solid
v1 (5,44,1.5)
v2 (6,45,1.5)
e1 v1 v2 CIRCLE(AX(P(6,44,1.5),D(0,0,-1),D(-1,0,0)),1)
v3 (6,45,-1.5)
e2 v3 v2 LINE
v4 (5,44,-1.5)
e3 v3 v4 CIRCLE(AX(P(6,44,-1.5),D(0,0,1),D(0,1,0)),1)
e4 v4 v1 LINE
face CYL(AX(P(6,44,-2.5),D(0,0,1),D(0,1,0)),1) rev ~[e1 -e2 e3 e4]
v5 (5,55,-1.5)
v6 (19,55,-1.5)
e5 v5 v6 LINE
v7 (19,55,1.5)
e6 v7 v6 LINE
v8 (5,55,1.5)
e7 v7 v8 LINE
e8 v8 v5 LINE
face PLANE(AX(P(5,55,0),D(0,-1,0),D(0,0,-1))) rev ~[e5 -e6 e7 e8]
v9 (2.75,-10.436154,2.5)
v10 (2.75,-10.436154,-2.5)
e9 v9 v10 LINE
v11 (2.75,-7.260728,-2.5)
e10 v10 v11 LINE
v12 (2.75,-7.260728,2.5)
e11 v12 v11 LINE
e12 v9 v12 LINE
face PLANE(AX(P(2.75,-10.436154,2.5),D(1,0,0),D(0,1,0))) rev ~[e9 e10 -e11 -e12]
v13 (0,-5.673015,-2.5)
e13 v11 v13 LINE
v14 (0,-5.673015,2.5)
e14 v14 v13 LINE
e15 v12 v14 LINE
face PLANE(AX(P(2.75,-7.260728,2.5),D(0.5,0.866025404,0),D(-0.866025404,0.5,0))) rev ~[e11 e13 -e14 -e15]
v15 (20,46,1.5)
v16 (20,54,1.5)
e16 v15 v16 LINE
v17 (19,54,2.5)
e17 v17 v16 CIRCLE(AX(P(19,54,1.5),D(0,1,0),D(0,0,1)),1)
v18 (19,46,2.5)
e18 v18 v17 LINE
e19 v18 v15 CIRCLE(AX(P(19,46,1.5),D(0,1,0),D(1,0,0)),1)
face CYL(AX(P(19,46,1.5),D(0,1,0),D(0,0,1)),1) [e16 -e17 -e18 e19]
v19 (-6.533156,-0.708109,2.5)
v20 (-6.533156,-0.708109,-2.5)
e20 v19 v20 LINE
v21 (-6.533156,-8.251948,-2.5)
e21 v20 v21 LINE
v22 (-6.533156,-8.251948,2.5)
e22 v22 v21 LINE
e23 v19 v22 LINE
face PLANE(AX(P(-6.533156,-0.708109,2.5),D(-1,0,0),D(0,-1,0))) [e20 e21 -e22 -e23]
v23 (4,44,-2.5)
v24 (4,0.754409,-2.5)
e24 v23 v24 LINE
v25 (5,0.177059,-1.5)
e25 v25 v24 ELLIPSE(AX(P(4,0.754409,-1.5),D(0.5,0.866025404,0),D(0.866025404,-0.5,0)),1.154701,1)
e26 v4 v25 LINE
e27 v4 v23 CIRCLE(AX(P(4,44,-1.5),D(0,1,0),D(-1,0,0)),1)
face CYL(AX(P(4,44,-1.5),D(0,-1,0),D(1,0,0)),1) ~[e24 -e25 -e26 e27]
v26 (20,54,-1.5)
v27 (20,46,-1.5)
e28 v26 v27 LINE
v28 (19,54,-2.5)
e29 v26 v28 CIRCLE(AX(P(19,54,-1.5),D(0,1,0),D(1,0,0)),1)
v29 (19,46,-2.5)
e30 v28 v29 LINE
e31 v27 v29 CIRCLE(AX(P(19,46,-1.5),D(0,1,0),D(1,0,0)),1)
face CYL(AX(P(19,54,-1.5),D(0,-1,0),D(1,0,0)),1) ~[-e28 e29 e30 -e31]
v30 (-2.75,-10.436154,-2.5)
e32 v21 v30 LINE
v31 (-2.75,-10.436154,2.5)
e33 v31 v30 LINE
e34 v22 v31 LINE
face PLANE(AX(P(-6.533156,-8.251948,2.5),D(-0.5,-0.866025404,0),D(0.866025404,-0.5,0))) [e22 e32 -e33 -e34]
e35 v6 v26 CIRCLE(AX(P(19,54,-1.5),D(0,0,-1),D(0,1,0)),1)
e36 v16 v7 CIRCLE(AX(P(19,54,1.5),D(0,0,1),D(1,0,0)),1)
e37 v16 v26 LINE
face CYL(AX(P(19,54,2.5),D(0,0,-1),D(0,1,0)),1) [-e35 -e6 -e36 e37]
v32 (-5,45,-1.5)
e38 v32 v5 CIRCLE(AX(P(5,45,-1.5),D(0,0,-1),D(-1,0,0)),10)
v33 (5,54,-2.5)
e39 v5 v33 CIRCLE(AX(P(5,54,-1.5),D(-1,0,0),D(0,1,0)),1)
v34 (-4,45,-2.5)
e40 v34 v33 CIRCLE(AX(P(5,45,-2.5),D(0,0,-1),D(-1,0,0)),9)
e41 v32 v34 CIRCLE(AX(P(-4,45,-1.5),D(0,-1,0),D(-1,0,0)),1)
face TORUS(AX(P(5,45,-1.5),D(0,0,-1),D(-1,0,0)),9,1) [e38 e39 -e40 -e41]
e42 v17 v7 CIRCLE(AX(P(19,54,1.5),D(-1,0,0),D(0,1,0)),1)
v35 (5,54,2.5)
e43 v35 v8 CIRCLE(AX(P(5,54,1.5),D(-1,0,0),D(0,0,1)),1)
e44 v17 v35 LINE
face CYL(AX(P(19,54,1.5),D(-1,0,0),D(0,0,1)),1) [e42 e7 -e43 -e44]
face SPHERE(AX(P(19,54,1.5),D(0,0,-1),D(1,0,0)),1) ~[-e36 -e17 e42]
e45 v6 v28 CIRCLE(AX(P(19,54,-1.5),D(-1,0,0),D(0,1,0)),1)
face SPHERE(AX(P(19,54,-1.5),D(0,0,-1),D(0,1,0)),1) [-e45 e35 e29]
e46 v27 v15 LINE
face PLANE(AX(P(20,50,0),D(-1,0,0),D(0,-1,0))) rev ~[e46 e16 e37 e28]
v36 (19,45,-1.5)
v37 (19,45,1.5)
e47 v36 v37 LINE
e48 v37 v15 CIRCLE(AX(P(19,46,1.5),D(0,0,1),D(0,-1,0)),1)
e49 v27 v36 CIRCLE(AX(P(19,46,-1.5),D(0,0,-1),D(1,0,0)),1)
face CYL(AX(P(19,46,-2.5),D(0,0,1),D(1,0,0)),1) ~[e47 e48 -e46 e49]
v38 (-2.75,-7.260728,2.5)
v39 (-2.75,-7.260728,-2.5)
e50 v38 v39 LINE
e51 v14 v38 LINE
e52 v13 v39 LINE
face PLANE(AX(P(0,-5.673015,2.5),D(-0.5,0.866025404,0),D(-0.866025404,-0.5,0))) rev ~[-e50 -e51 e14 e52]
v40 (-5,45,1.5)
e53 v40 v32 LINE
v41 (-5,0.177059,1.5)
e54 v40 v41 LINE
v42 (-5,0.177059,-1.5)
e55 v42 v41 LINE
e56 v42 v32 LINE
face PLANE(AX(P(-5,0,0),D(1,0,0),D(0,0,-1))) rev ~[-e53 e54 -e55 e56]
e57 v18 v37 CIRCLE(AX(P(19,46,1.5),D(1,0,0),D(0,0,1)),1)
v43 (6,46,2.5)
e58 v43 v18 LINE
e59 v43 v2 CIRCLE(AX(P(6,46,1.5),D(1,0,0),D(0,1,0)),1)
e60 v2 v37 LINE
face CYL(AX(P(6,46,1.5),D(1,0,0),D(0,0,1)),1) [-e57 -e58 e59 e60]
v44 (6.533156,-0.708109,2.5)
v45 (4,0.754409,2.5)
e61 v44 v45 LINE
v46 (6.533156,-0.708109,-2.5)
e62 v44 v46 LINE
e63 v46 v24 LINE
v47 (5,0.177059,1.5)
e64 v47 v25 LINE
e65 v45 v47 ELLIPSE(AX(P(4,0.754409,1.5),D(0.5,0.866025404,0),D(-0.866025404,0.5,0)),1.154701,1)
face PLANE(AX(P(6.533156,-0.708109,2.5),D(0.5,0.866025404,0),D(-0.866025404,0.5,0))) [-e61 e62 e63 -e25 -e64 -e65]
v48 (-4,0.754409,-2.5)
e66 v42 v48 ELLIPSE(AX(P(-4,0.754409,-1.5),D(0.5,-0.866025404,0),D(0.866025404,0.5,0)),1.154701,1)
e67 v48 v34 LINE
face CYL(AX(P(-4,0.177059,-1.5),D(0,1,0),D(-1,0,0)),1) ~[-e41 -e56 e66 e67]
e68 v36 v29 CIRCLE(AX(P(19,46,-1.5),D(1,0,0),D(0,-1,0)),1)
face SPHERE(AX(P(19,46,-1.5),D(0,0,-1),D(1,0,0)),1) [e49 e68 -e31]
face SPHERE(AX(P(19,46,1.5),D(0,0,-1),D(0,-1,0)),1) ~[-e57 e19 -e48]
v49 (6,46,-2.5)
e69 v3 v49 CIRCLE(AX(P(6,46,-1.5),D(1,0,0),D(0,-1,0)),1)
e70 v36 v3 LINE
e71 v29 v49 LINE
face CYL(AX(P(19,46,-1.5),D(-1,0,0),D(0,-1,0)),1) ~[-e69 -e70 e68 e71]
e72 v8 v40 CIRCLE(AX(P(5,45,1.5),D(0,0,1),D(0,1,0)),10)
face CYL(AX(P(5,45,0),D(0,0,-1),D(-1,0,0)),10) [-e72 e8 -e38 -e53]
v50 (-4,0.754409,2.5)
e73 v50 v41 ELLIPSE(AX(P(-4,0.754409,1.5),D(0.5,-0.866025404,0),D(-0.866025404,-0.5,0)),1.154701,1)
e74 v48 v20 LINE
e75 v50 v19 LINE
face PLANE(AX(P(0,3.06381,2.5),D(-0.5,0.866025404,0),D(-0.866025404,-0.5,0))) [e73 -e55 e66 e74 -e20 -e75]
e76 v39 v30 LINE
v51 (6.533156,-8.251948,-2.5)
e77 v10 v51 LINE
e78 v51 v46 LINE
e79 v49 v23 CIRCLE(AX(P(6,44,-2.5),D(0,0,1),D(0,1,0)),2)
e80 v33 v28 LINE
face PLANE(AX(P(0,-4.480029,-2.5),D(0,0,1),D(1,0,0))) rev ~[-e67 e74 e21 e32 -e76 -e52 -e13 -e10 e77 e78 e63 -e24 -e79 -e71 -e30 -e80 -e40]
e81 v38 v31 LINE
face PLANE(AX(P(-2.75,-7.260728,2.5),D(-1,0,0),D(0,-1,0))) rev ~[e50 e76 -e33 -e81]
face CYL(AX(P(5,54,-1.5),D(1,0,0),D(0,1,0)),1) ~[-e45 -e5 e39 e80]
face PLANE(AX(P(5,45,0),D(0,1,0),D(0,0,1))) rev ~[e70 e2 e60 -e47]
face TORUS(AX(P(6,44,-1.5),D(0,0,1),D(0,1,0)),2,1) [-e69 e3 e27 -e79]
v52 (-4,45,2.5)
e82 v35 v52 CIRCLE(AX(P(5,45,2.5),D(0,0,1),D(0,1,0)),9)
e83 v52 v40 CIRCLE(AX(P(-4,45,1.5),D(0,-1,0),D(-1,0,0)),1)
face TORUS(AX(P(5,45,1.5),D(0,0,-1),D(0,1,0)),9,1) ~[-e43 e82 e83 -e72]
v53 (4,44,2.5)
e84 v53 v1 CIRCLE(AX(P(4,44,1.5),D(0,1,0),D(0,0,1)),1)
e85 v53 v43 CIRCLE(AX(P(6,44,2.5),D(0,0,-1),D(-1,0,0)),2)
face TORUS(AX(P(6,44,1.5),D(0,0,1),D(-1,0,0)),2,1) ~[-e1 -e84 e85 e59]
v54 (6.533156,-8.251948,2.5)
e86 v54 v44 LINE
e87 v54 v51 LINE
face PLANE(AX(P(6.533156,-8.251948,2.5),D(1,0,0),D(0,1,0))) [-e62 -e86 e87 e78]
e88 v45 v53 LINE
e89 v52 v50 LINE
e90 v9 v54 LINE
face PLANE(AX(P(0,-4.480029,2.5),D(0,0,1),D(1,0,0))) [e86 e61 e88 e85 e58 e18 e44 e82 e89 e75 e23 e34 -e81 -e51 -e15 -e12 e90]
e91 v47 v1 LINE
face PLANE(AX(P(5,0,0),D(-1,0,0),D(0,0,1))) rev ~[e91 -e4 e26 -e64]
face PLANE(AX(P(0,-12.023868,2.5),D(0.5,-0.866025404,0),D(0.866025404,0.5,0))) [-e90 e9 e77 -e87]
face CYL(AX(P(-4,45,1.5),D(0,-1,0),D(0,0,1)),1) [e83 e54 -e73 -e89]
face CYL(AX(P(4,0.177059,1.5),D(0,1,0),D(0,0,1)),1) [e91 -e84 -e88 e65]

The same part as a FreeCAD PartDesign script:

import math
import FreeCAD as App
import Part
import Sketcher
Q = App.Units.Quantity


def edges_at(feature, points):
    """Names of the edges that pass closest to the given points."""
    edges = feature.Shape.Edges
    near = lambda p: min(range(len(edges)), key=lambda i: edges[i].distToShape(Part.Vertex(*p))[0])
    return sorted({f"Edge{near(p) + 1}" for p in points})


def add_polygon(sketch, points):
    """Adds a closed chain of lines whose ends are joined by coincident constraints."""
    first, n = sketch.GeometryCount, len(points)
    for a, b in zip(points, points[1:] + points[:1]):
        sketch.addGeometry(Part.LineSegment(App.Vector(*a, 0), App.Vector(*b, 0)), False)
    for i in range(n):
        sketch.addConstraint(Sketcher.Constraint("Coincident", first + i, 2, first + (i + 1) % n, 1))

doc = App.newDocument("Part")
params = doc.addObject("Spreadsheet::Sheet", "Params")
for row, (alias, value) in enumerate([
    ("sketch1_width", "10 mm"),
    ("sketch1_height", "5 mm"),
    ("sketch2_radius", "5 mm"),
    ("sketch2_width", "15 mm"),
    ("sketch2_height", "45 mm"),
    ("pad1_length", "5 mm"),
    ("fillet_radius", "1 mm"),
    ("fillet2_radius", "1 mm"),
], start=1):
    params.set(f"A{row}", alias)
    params.set(f"B{row}", "=" + value)
    params.setAlias(f"B{row}", alias)

body = doc.addObject("PartDesign::Body", "Body")

# Sketch on XZ plane
sketch1 = body.newObject("Sketcher::SketchObject", "Sketch")
sketch1.AttachmentSupport = (doc.getObject("XZ_Plane"), [""])
sketch1.MapMode = "FlatFace"
add_polygon(sketch1, [(-5, 2), (-5, -2), (5, -2), (5, 2)])  # lines 0-3
sketch1.addConstraint([
    Sketcher.Constraint("Vertical", 0),
    Sketcher.Constraint("Horizontal", 1),
    Sketcher.Constraint("Vertical", 2),
    Sketcher.Constraint("Horizontal", 3),
    Sketcher.Constraint("Symmetric", 0, 2, 2, 2, -1, 1),
    Sketcher.Constraint("DistanceX", 1, 1, 1, 2, 10.0),
    Sketcher.Constraint("DistanceY", 0, 2, 0, 1, 5.0),
])
sketch1.setExpression("Constraints[9]", "Params.sketch1_width")
sketch1.setExpression("Constraints[10]", "Params.sketch1_height")

# Sketch on XY plane
sketch2 = body.newObject("Sketcher::SketchObject", "Sketch001")
sketch2.AttachmentSupport = (doc.getObject("XY_Plane"), [""])
sketch2.MapMode = "FlatFace"
sketch2.addGeometry([
    Part.LineSegment(App.Vector(0, 0, 0), App.Vector(0, 45, 0)),
    Part.ArcOfCircle(Part.Circle(App.Vector(5, 45, 0), App.Vector(0, 0, 1), 5), math.radians(90), math.radians(180)),
    Part.LineSegment(App.Vector(5, 50, 0), App.Vector(20, 50, 0)),
], False)
sketch2.addConstraint([
    Sketcher.Constraint("Tangent", 0, 2, 1, 2),
    Sketcher.Constraint("Tangent", 1, 1, 2, 1),
    Sketcher.Constraint("Vertical", 0),
    Sketcher.Constraint("Horizontal", 2),
    Sketcher.Constraint("Coincident", 0, 1, -1, 1),
    Sketcher.Constraint("Radius", 1, 5.0),
    Sketcher.Constraint("DistanceX", 2, 1, 2, 2, 15.0),
    Sketcher.Constraint("DistanceY", 0, 1, 0, 2, 45.0),
])
sketch2.setExpression("Constraints[5]", "Params.sketch2_radius")
sketch2.setExpression("Constraints[6]", "Params.sketch2_width")
sketch2.setExpression("Constraints[7]", "Params.sketch2_height")
doc.recompute()

additivepipe = body.newObject("PartDesign::AdditivePipe", "AdditivePipe")
additivepipe.Profile = sketch1
additivepipe.Spine = (sketch2, ["Edge1", "Edge2", "Edge3"])

# Sketch on XY plane
sketch3 = body.newObject("Sketcher::SketchObject", "Sketch002")
sketch3.AttachmentSupport = (doc.getObject("XY_Plane"), [""])
sketch3.MapMode = "FlatFace"
sketch3.AttachmentOffset = App.Placement(App.Vector(0, 0, 2.5), App.Rotation())
add_polygon(sketch3, [(0, -12), (7, -8), (7, -1), (0, 3), (-7, -1), (-7, -8)])  # lines 0-5
sketch3.addConstraint([
    Sketcher.Constraint("Vertical", 1),
    Sketcher.Constraint("Vertical", 4),
    Sketcher.Constraint("Symmetric", 1, 2, 3, 2, -2),
    Sketcher.Constraint("PointOnObject", 2, 2, -2),
    Sketcher.Constraint("PointOnObject", 5, 2, -2),
    Sketcher.Constraint("Parallel", 0, 3),
    Sketcher.Constraint("Parallel", 2, 5),
    Sketcher.Constraint("Angle", 0, Q("30 deg")),
    Sketcher.Constraint("DistanceY", 1, 1, 1, 2, 7.543839),
    Sketcher.Constraint("Distance", 0, 7.543839),
    Sketcher.Constraint("DistanceY", 0, 2, -1, 1, 8.251948),
])
pad1 = body.newObject("PartDesign::Pad", "Pad")
pad1.Profile = sketch3
pad1.setExpression("Length", "Params.pad1_length")
pad1.Reversed = True

# Sketch on XY plane
sketch4 = body.newObject("Sketcher::SketchObject", "Sketch003")
sketch4.AttachmentSupport = (doc.getObject("XY_Plane"), [""])
sketch4.MapMode = "FlatFace"
sketch4.AttachmentOffset = App.Placement(App.Vector(0, 0, 2.5), App.Rotation())
add_polygon(sketch4, [(0, -12), (2.8, -10.4), (2.8, -7.3), (0, -5.7), (-2.8, -7.3), (-2.8, -10.4)])  # lines 0-5
sketch4.addConstraint([
    Sketcher.Constraint("Vertical", 1),
    Sketcher.Constraint("Vertical", 4),
    Sketcher.Constraint("Symmetric", 1, 2, 3, 2, -2),
    Sketcher.Constraint("PointOnObject", 2, 2, -2),
    Sketcher.Constraint("PointOnObject", 5, 2, -2),
    Sketcher.Constraint("Parallel", 0, 3),
    Sketcher.Constraint("Parallel", 2, 5),
    Sketcher.Constraint("Angle", 0, Q("30 deg")),
    Sketcher.Constraint("DistanceX", 3, 2, 1, 2, 5.5),
    Sketcher.Constraint("DistanceY", 1, 1, 1, 2, 3.175426),
    Sketcher.Constraint("DistanceY", 0, 2, -1, 1, 10.436154),
])
pocket1 = body.newObject("PartDesign::Pocket", "Pocket")
pocket1.Profile = sketch4
pocket1.Type = "ThroughAll"
doc.recompute()

fillet = body.newObject("PartDesign::Fillet", "Fillet")
fillet.Base = (pocket1, edges_at(pocket1, [(20, 55, 0), (20, 45, 0), (5, 45, 0)]))
fillet.setExpression("Radius", "Params.fillet_radius")
doc.recompute()

fillet2 = body.newObject("PartDesign::Fillet", "Fillet001")
fillet2.Base = (fillet, edges_at(fillet, [(20, 50, 2.5), (20, 50, -2.5)]))
fillet2.setExpression("Radius", "Params.fillet2_radius")

doc.recompute()
